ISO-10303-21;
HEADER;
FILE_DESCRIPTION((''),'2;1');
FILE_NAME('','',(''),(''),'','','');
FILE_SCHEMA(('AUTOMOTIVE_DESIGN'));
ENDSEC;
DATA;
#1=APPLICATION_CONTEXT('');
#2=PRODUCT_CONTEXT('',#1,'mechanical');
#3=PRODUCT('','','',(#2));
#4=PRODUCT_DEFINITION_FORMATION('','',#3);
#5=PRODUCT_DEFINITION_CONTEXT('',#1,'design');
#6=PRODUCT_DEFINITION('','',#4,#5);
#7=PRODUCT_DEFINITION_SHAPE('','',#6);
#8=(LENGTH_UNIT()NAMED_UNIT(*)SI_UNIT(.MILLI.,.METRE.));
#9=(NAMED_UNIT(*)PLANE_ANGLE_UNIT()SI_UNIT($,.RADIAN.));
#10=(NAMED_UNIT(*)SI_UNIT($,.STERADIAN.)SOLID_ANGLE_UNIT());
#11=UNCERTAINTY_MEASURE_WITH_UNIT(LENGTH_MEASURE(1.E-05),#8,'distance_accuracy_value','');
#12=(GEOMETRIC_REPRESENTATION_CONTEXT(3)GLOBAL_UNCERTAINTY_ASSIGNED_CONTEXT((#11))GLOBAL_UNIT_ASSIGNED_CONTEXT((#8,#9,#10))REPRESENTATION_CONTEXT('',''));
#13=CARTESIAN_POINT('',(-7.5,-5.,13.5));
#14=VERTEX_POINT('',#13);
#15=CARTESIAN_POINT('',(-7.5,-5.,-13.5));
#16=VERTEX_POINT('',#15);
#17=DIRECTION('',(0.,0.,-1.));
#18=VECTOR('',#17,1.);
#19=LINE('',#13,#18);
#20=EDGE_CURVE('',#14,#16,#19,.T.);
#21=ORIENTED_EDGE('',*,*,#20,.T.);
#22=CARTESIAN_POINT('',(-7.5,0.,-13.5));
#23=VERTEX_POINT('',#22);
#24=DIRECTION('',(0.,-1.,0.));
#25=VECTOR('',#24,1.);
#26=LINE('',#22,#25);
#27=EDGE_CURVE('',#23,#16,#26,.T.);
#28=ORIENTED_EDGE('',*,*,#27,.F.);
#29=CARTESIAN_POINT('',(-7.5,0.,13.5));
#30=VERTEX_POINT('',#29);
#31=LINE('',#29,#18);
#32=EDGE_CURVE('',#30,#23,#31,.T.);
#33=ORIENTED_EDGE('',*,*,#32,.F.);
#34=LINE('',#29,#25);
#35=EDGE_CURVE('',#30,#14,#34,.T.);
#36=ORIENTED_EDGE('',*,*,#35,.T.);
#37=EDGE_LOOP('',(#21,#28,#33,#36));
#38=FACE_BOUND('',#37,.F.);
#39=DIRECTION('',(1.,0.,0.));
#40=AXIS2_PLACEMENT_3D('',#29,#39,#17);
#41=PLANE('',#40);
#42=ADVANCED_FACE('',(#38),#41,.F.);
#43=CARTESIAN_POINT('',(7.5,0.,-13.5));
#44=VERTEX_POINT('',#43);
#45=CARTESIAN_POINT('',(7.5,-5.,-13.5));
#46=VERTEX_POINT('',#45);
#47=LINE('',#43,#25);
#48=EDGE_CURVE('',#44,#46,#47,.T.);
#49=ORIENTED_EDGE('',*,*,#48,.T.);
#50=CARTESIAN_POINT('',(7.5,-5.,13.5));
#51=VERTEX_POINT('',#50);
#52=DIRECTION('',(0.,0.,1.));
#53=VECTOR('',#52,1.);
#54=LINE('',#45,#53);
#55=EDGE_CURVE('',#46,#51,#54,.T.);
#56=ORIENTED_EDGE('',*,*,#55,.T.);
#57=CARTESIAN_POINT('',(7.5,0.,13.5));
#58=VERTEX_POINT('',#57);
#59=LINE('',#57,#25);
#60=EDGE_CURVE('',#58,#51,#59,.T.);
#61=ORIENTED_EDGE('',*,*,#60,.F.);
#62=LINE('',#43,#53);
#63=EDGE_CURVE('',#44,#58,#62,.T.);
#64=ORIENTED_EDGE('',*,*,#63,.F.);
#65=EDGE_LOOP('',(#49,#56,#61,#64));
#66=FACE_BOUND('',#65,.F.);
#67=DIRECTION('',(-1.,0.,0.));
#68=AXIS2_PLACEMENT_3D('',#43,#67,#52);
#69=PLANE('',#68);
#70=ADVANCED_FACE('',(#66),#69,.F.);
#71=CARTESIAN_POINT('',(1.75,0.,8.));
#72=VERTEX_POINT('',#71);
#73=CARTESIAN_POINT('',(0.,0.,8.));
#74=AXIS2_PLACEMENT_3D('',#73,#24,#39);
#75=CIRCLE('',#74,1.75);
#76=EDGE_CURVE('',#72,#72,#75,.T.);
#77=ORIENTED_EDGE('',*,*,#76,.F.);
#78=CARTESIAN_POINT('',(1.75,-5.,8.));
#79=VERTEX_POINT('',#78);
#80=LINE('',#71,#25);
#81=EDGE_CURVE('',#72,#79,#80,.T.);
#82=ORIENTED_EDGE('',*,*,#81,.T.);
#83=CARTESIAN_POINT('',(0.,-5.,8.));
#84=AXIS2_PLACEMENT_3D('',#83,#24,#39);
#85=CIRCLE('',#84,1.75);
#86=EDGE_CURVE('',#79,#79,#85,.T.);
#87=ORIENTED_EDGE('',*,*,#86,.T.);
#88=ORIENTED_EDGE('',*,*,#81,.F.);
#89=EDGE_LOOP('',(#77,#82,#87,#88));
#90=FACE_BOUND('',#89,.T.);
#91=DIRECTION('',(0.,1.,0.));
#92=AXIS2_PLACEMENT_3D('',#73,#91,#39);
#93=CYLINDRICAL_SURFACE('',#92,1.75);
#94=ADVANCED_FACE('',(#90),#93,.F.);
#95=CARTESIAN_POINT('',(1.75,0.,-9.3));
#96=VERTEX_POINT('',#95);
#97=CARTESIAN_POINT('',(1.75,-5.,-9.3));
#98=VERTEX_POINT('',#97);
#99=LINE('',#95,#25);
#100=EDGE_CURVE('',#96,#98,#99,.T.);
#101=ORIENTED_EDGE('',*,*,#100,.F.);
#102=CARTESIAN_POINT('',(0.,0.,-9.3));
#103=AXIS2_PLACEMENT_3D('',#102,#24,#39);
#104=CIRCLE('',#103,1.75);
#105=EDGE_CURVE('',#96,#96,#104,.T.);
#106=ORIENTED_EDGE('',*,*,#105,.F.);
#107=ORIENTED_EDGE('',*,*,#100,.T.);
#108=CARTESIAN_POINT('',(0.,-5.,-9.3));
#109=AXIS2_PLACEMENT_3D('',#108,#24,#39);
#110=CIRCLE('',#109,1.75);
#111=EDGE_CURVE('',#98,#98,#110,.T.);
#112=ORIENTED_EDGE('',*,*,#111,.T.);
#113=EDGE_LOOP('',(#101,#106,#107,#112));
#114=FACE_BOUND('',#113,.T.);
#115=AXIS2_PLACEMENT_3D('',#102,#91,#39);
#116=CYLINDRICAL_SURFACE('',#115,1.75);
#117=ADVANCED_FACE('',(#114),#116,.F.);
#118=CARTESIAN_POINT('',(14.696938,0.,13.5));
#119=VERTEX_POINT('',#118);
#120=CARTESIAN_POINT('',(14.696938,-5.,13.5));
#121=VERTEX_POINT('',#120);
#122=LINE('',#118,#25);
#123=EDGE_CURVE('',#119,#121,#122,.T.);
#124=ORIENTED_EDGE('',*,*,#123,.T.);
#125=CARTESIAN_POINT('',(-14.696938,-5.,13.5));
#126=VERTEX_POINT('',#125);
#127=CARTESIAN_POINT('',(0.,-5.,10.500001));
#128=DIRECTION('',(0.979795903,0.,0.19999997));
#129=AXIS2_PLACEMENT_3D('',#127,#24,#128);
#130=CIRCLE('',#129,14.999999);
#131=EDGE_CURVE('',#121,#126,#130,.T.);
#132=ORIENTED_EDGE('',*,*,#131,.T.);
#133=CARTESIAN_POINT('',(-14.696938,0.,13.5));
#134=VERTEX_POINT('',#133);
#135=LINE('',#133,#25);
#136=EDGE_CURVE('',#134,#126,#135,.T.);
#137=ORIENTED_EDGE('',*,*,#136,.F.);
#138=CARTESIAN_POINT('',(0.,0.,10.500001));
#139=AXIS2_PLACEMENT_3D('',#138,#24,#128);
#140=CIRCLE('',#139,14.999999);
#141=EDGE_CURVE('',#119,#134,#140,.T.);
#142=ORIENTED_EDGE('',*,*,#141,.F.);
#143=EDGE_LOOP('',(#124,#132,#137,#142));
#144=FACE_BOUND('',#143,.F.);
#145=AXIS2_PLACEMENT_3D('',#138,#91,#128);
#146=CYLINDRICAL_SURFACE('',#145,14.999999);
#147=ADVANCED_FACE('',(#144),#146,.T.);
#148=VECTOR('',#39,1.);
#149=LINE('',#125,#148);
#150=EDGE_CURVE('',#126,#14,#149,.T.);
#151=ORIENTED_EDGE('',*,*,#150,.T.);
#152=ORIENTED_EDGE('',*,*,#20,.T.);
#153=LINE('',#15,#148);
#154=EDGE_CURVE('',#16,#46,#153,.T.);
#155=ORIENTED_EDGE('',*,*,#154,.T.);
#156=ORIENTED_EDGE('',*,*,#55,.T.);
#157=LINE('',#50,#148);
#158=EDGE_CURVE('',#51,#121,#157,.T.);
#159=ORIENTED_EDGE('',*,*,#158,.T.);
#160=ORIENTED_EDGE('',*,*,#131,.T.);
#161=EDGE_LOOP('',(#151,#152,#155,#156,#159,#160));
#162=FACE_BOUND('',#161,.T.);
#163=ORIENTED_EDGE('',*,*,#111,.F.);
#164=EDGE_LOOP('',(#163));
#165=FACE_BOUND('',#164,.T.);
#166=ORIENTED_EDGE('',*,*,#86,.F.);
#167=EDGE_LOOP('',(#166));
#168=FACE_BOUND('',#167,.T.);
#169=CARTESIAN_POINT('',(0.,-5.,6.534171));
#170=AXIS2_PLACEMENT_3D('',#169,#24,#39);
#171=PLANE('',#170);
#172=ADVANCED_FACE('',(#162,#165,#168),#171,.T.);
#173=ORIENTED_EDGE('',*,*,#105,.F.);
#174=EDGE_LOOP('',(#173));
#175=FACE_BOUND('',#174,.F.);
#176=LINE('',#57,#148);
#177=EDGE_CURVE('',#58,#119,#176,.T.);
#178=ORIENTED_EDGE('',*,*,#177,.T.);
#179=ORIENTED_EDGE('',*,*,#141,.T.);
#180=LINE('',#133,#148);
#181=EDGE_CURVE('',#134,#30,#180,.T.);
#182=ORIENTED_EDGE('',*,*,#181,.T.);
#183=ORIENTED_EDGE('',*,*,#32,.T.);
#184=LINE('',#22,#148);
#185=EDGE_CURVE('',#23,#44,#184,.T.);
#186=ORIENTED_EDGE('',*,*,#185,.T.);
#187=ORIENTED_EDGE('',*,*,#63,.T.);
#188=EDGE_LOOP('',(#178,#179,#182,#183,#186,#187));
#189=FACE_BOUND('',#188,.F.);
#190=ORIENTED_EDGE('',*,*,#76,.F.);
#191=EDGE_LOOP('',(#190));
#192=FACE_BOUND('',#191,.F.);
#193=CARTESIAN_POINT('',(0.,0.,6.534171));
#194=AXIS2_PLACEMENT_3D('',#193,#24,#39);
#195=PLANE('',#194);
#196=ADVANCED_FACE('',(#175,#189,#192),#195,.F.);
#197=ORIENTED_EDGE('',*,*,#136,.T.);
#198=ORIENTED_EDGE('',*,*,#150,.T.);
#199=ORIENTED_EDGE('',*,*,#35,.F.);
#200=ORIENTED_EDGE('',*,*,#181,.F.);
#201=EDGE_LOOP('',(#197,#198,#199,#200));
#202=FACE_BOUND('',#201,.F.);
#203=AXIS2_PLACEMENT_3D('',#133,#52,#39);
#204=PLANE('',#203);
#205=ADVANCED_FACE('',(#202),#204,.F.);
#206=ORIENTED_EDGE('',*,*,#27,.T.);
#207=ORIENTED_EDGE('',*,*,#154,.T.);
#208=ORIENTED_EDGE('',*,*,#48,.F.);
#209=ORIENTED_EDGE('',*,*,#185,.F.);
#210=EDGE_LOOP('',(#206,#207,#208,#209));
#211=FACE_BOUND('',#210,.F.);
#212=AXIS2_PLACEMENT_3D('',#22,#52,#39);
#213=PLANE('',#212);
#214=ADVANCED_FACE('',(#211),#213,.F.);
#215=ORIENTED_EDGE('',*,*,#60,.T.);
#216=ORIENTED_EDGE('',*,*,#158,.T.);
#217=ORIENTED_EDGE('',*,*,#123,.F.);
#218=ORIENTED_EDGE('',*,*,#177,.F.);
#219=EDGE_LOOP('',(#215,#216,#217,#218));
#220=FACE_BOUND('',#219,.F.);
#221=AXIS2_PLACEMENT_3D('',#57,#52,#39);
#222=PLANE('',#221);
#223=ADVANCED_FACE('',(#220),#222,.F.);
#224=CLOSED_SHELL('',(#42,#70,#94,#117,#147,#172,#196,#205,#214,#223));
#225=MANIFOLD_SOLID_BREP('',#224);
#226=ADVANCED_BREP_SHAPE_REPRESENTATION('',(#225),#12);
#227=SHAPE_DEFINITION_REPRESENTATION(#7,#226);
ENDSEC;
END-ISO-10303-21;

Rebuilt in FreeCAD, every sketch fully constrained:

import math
import FreeCAD as App
import Part
import Sketcher

V = App.Vector
Q = App.Units.Quantity

doc = App.newDocument("Part")
body = doc.addObject("PartDesign::Body", "Body")

sketch1 = doc.addObject("Sketcher::SketchObject", "Sketch")
body.addObject(sketch1)
sketch1.AttachmentSupport = (doc.XZ_Plane, [""])
sketch1.MapMode = "FlatFace"
sketch1.addGeometry(Part.LineSegment(V(-7.5, -13.5, 0), V(7.5, -13.5, 0)), False)
sketch1.addGeometry(Part.LineSegment(V(7.5, -13.5, 0), V(7.5, 13.5, 0)), False)
sketch1.addGeometry(Part.LineSegment(V(7.5, 13.5, 0), V(14.7, 13.5, 0)), False)
sketch1.addGeometry(Part.ArcOfCircle(Part.Circle(V(0, 10.5, 0), V(0, 0, 1), 15), math.radians(12), math.radians(168)), False)
sketch1.addGeometry(Part.LineSegment(V(-14.7, 13.5, 0), V(-7.5, 13.5, 0)), False)
sketch1.addGeometry(Part.LineSegment(V(-7.5, 13.5, 0), V(-7.5, -13.5, 0)), False)
sketch1.addGeometry(Part.Circle(V(0, -9.3, 0), V(0, 0, 1), 1.8), False)
sketch1.addGeometry(Part.Circle(V(0, 8, 0), V(0, 0, 1), 1.8), False)
sketch1.addConstraint(Sketcher.Constraint("Coincident", 0, 2, 1, 1))
sketch1.addConstraint(Sketcher.Constraint("Coincident", 1, 2, 2, 1))
sketch1.addConstraint(Sketcher.Constraint("Coincident", 2, 2, 3, 1))
sketch1.addConstraint(Sketcher.Constraint("Coincident", 3, 2, 4, 1))
sketch1.addConstraint(Sketcher.Constraint("Coincident", 4, 2, 5, 1))
sketch1.addConstraint(Sketcher.Constraint("Coincident", 5, 2, 0, 1))
sketch1.addConstraint(Sketcher.Constraint("Horizontal", 0))
sketch1.addConstraint(Sketcher.Constraint("Vertical", 1))
sketch1.addConstraint(Sketcher.Constraint("Horizontal", 2))
sketch1.addConstraint(Sketcher.Constraint("Horizontal", 4))
sketch1.addConstraint(Sketcher.Constraint("Vertical", 5))
sketch1.addConstraint(Sketcher.Constraint("Equal", 6, 7))
sketch1.addConstraint(Sketcher.Constraint("Symmetric", 0, 2, 4, 2, -1, 1))
sketch1.addConstraint(Sketcher.Constraint("Symmetric", 2, 2, 3, 2, -2))
sketch1.addConstraint(Sketcher.Constraint("PointOnObject", 6, 3, -2))
sketch1.addConstraint(Sketcher.Constraint("PointOnObject", 7, 3, -2))
sketch1.addConstraint(Sketcher.Constraint("Radius", 3, Q("14.999999 mm")))
sketch1.addConstraint(Sketcher.Constraint("Diameter", 6, Q("3.5 mm")))
sketch1.addConstraint(Sketcher.Constraint("DistanceX", 0, 1, 0, 2, Q("15 mm")))
sketch1.addConstraint(Sketcher.Constraint("DistanceY", 1, 1, 1, 2, Q("27 mm")))
sketch1.addConstraint(Sketcher.Constraint("DistanceY", -1, 1, 7, 3, Q("8 mm")))
sketch1.addConstraint(Sketcher.Constraint("DistanceY", 0, 2, 3, 3, Q("24.000001 mm")))
sketch1.addConstraint(Sketcher.Constraint("DistanceY", 6, 3, -1, 1, Q("9.3 mm")))
pad1 = doc.addObject("PartDesign::Pad", "Pad")
body.addObject(pad1)
pad1.Profile = sketch1
pad1.Length = 5

doc.recompute()
